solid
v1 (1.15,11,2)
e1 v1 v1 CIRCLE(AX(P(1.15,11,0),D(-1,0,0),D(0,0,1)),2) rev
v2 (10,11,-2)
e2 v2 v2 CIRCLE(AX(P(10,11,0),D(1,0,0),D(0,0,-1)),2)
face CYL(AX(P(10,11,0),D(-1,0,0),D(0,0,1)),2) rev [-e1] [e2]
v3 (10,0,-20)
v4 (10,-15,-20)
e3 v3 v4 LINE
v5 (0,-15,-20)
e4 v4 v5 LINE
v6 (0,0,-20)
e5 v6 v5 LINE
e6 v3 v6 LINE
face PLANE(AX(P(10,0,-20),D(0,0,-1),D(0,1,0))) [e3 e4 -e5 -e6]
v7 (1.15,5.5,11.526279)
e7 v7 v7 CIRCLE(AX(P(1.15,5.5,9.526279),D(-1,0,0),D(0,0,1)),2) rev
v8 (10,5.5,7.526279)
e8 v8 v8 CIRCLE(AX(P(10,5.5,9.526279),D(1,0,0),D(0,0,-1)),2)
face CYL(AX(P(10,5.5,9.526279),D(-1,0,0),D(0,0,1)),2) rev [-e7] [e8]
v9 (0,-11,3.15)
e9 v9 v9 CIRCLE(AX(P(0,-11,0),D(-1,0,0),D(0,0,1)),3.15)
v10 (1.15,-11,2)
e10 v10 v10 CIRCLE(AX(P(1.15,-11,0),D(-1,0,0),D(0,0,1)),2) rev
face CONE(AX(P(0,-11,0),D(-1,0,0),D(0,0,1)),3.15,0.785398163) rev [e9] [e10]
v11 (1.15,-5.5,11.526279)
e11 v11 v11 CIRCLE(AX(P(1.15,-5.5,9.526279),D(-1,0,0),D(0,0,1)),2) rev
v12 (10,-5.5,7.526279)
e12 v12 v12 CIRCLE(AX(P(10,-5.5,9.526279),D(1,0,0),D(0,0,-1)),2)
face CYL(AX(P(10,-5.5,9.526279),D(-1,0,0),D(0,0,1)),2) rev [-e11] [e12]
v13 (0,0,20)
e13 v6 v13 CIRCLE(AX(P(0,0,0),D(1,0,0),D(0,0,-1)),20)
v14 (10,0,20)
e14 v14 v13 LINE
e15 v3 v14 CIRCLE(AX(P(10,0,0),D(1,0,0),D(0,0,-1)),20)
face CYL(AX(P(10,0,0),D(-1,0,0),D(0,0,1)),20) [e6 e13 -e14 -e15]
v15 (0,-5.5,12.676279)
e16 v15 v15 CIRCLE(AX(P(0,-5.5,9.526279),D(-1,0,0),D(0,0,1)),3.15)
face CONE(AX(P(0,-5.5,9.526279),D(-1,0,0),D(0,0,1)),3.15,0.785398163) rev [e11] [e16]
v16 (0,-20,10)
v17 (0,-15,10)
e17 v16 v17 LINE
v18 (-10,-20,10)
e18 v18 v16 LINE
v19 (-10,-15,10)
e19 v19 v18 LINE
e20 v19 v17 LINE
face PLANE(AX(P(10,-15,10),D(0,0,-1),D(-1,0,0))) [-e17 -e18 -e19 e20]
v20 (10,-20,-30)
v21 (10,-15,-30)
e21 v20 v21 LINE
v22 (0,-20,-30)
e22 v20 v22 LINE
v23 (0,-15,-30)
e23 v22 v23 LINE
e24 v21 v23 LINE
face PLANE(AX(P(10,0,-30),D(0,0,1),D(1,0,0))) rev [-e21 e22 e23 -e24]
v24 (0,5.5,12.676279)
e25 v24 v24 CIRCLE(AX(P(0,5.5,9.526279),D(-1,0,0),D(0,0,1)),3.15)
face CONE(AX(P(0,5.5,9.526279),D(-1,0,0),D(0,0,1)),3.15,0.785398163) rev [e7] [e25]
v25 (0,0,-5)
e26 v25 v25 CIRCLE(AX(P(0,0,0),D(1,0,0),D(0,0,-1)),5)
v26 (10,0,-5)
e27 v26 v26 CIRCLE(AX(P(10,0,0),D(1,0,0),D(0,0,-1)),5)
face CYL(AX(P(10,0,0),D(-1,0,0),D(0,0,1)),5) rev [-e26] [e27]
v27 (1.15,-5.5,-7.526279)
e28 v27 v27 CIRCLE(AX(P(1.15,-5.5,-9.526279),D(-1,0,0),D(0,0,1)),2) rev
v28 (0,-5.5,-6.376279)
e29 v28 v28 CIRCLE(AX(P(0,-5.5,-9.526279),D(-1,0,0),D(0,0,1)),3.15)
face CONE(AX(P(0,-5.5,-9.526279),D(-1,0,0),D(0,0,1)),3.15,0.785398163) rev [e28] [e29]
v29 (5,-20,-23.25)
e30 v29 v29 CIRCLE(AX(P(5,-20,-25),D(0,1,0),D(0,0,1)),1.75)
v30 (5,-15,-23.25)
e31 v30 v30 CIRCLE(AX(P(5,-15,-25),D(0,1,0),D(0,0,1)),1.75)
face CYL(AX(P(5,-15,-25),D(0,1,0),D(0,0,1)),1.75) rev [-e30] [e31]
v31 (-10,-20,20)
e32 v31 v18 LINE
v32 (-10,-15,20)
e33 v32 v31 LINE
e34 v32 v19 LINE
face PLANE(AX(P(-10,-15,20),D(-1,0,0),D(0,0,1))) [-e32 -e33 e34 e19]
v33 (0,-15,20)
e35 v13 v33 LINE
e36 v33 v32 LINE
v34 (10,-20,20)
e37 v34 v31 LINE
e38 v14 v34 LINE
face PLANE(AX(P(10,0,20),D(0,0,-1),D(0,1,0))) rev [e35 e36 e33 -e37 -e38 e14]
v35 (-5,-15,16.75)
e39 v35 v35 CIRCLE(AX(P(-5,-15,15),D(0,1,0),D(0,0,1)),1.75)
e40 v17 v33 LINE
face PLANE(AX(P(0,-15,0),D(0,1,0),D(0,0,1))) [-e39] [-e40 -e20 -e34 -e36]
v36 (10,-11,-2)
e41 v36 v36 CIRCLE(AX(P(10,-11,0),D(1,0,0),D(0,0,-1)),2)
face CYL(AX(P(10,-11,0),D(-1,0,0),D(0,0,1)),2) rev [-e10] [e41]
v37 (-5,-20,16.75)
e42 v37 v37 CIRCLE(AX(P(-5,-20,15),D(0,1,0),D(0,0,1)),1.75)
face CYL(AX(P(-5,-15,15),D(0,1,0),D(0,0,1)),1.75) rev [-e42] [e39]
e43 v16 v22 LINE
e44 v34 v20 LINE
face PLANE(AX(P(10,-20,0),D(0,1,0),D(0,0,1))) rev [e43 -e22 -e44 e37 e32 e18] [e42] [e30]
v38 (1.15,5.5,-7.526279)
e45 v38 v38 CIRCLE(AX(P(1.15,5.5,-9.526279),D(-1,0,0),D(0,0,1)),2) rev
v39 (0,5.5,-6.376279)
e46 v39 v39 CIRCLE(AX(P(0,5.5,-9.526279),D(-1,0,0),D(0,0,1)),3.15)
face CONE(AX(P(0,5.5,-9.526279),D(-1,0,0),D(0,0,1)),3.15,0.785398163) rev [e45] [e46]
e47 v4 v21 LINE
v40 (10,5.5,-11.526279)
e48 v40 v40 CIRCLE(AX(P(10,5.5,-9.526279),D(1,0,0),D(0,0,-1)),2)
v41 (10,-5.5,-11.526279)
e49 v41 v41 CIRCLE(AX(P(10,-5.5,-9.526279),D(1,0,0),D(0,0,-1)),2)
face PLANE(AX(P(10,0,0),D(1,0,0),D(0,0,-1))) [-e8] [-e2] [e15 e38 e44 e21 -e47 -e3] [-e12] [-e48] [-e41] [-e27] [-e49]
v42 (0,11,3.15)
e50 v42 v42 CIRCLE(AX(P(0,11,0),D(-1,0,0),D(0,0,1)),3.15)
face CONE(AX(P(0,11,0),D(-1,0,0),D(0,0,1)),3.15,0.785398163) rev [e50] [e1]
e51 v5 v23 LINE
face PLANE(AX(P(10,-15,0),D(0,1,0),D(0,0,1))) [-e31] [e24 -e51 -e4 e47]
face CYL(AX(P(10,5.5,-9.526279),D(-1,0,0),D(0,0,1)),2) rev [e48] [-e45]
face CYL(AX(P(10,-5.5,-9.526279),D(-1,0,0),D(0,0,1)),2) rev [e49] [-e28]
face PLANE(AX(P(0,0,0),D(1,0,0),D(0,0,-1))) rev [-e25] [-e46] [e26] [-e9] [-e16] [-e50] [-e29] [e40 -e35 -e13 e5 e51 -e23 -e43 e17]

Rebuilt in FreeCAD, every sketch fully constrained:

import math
import FreeCAD as App
import Part
import Sketcher
from FreeCAD import Vector
Q = App.Units.Quantity


def add_polygon(sketch, points):
    """Adds a closed chain of lines whose ends are joined by coincident constraints."""
    first, n = sketch.GeometryCount, len(points)
    for a, b in zip(points, points[1:] + points[:1]):
        sketch.addGeometry(Part.LineSegment(App.Vector(*a, 0), App.Vector(*b, 0)), False)
    for i in range(n):
        sketch.addConstraint(Sketcher.Constraint("Coincident", first + i, 2, first + (i + 1) % n, 1))

doc = App.newDocument("Part")
params = doc.addObject("Spreadsheet::Sheet", "Params")
for row, (alias, value) in enumerate([
    ("sketch1_diameter", "4 mm"),
    ("sketch1_diameter2", "10 mm"),
    ("sketch1_radius", "20 mm"),
    ("sketch1_width", "15 mm"),
    ("sketch1_width2", "20 mm"),
    ("pad1_length", "10 mm"),
    ("sketch2_diameter", "3.4 mm"),
    ("hole_diameter", "3.4 mm"),
    ("hole_csink_diameter", "6.3 mm"),
    ("sketch3_width", "20 mm"),
    ("sketch3_height", "10 mm"),
    ("pad2_length", "5 mm"),
    ("sketch4_diameter", "3.5 mm"),
    ("hole2_diameter", "3.5 mm"),
], start=1):
    params.set(f"A{row}", alias)
    params.set(f"B{row}", "=" + value)
    params.setAlias(f"B{row}", alias)

body = doc.addObject("PartDesign::Body", "Body")

sketch1 = body.newObject("Sketcher::SketchObject", "Sketch")
sketch1.AttachmentSupport = (doc.getObject("YZ_Plane"), [""])
sketch1.MapMode = "FlatFace"
sketch1.addGeometry(Part.LineSegment(Vector(-15, -30, 0), Vector(-15, -20, 0)), False)
sketch1.addGeometry(Part.LineSegment(Vector(-15, -20, 0), Vector(0, -20, 0)), False)
sketch1.addGeometry(Part.ArcOfCircle(Part.Circle(Vector(0, 0, 0), Vector(0, 0, 1), 20), math.radians(-90), math.radians(90)), False)
sketch1.addGeometry(Part.LineSegment(Vector(0, 20, 0), Vector(-20, 20, 0)), False)
sketch1.addGeometry(Part.LineSegment(Vector(-20, 20, 0), Vector(-20, -30, 0)), False)
sketch1.addGeometry(Part.LineSegment(Vector(-20, -30, 0), Vector(-15, -30, 0)), False)
sketch1.addGeometry(Part.Circle(Vector(-5.5, 9.5, 0), Vector(0, 0, 1), 2), False)
sketch1.addGeometry(Part.Circle(Vector(-11, 0, 0), Vector(0, 0, 1), 2), False)
sketch1.addGeometry(Part.Circle(Vector(-5.5, -9.5, 0), Vector(0, 0, 1), 2), False)
sketch1.addGeometry(Part.Circle(Vector(5.5, 9.5, 0), Vector(0, 0, 1), 2), False)
sketch1.addGeometry(Part.Circle(Vector(0, 0, 0), Vector(0, 0, 1), 5), False)
sketch1.addGeometry(Part.Circle(Vector(5.5, -9.5, 0), Vector(0, 0, 1), 2), False)
sketch1.addGeometry(Part.Circle(Vector(11, 0, 0), Vector(0, 0, 1), 2), False)
sketch1.addConstraint(Sketcher.Constraint("Coincident", 0, 2, 1, 1))
sketch1.addConstraint(Sketcher.Constraint("Tangent", 1, 2, 2, 1))
sketch1.addConstraint(Sketcher.Constraint("Tangent", 2, 2, 3, 1))
sketch1.addConstraint(Sketcher.Constraint("Coincident", 3, 2, 4, 1))
sketch1.addConstraint(Sketcher.Constraint("Coincident", 4, 2, 5, 1))
sketch1.addConstraint(Sketcher.Constraint("Coincident", 5, 2, 0, 1))
sketch1.addConstraint(Sketcher.Constraint("Vertical", 0))
sketch1.addConstraint(Sketcher.Constraint("Horizontal", 1))
sketch1.addConstraint(Sketcher.Constraint("Horizontal", 3))
sketch1.addConstraint(Sketcher.Constraint("Vertical", 4))
sketch1.addConstraint(Sketcher.Constraint("Horizontal", 5))
sketch1.addConstraint(Sketcher.Constraint("Coincident", 2, 3, -1, 1))
sketch1.addConstraint(Sketcher.Constraint("Coincident", 10, 3, -1, 1))
sketch1.addConstraint(Sketcher.Constraint("Equal", 6, 7))
sketch1.addConstraint(Sketcher.Constraint("Equal", 7, 8))
sketch1.addConstraint(Sketcher.Constraint("Equal", 8, 9))
sketch1.addConstraint(Sketcher.Constraint("Equal", 9, 11))
sketch1.addConstraint(Sketcher.Constraint("Equal", 11, 12))
sketch1.addConstraint(Sketcher.Constraint("Symmetric", 8, 3, 9, 3, -1, 1))
sketch1.addConstraint(Sketcher.Constraint("Symmetric", 6, 3, 11, 3, -1, 1))
sketch1.addConstraint(Sketcher.Constraint("Symmetric", 7, 3, 12, 3, -1, 1))
sketch1.addConstraint(Sketcher.Constraint("Symmetric", 6, 3, 9, 3, -2))
sketch1.addConstraint(Sketcher.Constraint("PointOnObject", 7, 3, -1))
sketch1.addConstraint(Sketcher.Constraint("Diameter", 6, Q("4 mm")))
sketch1.addConstraint(Sketcher.Constraint("Diameter", 10, Q("10 mm")))
sketch1.addConstraint(Sketcher.Constraint("Radius", 2, Q("20 mm")))
sketch1.addConstraint(Sketcher.Constraint("DistanceX", 1, 1, 1, 2, Q("15 mm")))
sketch1.addConstraint(Sketcher.Constraint("DistanceX", 3, 2, 3, 1, Q("20 mm")))
sketch1.addConstraint(Sketcher.Constraint("DistanceY", 0, 1, 0, 2, Q("10 mm")))
sketch1.addConstraint(Sketcher.Constraint("DistanceX", 7, 3, -1, 1, Q("11 mm")))
sketch1.addConstraint(Sketcher.Constraint("DistanceX", 6, 3, 9, 3, Q("11 mm")))
sketch1.addConstraint(Sketcher.Constraint("DistanceY", -1, 1, 6, 3, Q("9.526279 mm")))
sketch1.setExpression("Constraints[23]", "Params.sketch1_diameter")
sketch1.setExpression("Constraints[24]", "Params.sketch1_diameter2")
sketch1.setExpression("Constraints[25]", "Params.sketch1_radius")
sketch1.setExpression("Constraints[26]", "Params.sketch1_width")
sketch1.setExpression("Constraints[27]", "Params.sketch1_width2")
pad1 = body.newObject("PartDesign::Pad", "Pad")
pad1.Profile = sketch1
pad1.setExpression("Length", "Params.pad1_length")

sketch2 = body.newObject("Sketcher::SketchObject", "Sketch001")
sketch2.AttachmentSupport = (doc.getObject("YZ_Plane"), [""])
sketch2.MapMode = "FlatFace"
sketch2.addGeometry(Part.Circle(Vector(11, 0, 0), Vector(0, 0, 1), 1.7), False)
sketch2.addGeometry(Part.Circle(Vector(5.5, 9.5, 0), Vector(0, 0, 1), 1.7), False)
sketch2.addGeometry(Part.Circle(Vector(-5.5, 9.5, 0), Vector(0, 0, 1), 1.7), False)
sketch2.addGeometry(Part.Circle(Vector(-11, 0, 0), Vector(0, 0, 1), 1.7), False)
sketch2.addGeometry(Part.Circle(Vector(-5.5, -9.5, 0), Vector(0, 0, 1), 1.7), False)
sketch2.addGeometry(Part.Circle(Vector(5.5, -9.5, 0), Vector(0, 0, 1), 1.7), False)
sketch2.addConstraint(Sketcher.Constraint("Equal", 0, 1))
sketch2.addConstraint(Sketcher.Constraint("Equal", 1, 2))
sketch2.addConstraint(Sketcher.Constraint("Equal", 2, 3))
sketch2.addConstraint(Sketcher.Constraint("Equal", 3, 4))
sketch2.addConstraint(Sketcher.Constraint("Equal", 4, 5))
sketch2.addConstraint(Sketcher.Constraint("Symmetric", 0, 3, 3, 3, -1, 1))
sketch2.addConstraint(Sketcher.Constraint("Symmetric", 1, 3, 4, 3, -1, 1))
sketch2.addConstraint(Sketcher.Constraint("Symmetric", 2, 3, 5, 3, -1, 1))
sketch2.addConstraint(Sketcher.Constraint("Symmetric", 1, 3, 2, 3, -2))
sketch2.addConstraint(Sketcher.Constraint("PointOnObject", 0, 3, -1))
sketch2.addConstraint(Sketcher.Constraint("Diameter", 0, Q("3.4 mm")))
sketch2.addConstraint(Sketcher.Constraint("DistanceX", -1, 1, 0, 3, Q("11 mm")))
sketch2.addConstraint(Sketcher.Constraint("DistanceX", 2, 3, 1, 3, Q("11 mm")))
sketch2.addConstraint(Sketcher.Constraint("DistanceY", -1, 1, 1, 3, Q("9.526279 mm")))
sketch2.setExpression("Constraints[10]", "Params.sketch2_diameter")
doc.recompute()
hole = body.newObject("PartDesign::Hole", "Hole")
hole.Profile = sketch2
hole.ThreadType = "None"
hole.setExpression("Diameter", "Params.hole_diameter")
hole.DepthType = "ThroughAll"
hole.HoleCutType = "Countersink"
hole.setExpression("HoleCutDiameter", "Params.hole_csink_diameter")
hole.HoleCutCountersinkAngle = 90
hole.Reversed = True

sketch3 = body.newObject("Sketcher::SketchObject", "Sketch002")
sketch3.AttachmentSupport = (doc.getObject("XZ_Plane"), [""])
sketch3.MapMode = "FlatFace"
sketch3.AttachmentOffset = App.Placement(Vector(0, 0, 20), App.Rotation())
add_polygon(sketch3, [(-10, 20), (-10, 10), (10, 10), (10, 20)])
sketch3.addConstraint(Sketcher.Constraint("Vertical", 0))
sketch3.addConstraint(Sketcher.Constraint("Horizontal", 1))
sketch3.addConstraint(Sketcher.Constraint("Vertical", 2))
sketch3.addConstraint(Sketcher.Constraint("Horizontal", 3))
sketch3.addConstraint(Sketcher.Constraint("DistanceX", 1, 1, 1, 2, Q("20 mm")))
sketch3.addConstraint(Sketcher.Constraint("DistanceY", 0, 2, 0, 1, Q("10 mm")))
sketch3.addConstraint(Sketcher.Constraint("DistanceX", 0, 2, -1, 1, Q("10 mm")))
sketch3.addConstraint(Sketcher.Constraint("DistanceY", -1, 1, 0, 2, Q("10 mm")))
sketch3.setExpression("Constraints[8]", "Params.sketch3_width")
sketch3.setExpression("Constraints[9]", "Params.sketch3_height")
pad2 = body.newObject("PartDesign::Pad", "Pad001")
pad2.Profile = sketch3
pad2.setExpression("Length", "Params.pad2_length")
pad2.Reversed = True

sketch4 = body.newObject("Sketcher::SketchObject", "Sketch003")
sketch4.AttachmentSupport = (doc.getObject("XZ_Plane"), [""])
sketch4.MapMode = "FlatFace"
sketch4.AttachmentOffset = App.Placement(Vector(0, 0, 15), App.Rotation())
sketch4.addGeometry(Part.Circle(Vector(5, -25, 0), Vector(0, 0, 1), 1.8), False)
sketch4.addGeometry(Part.Circle(Vector(-5, 15, 0), Vector(0, 0, 1), 1.8), False)
sketch4.addConstraint(Sketcher.Constraint("Equal", 0, 1))
sketch4.addConstraint(Sketcher.Constraint("Diameter", 0, Q("3.5 mm")))
sketch4.addConstraint(Sketcher.Constraint("DistanceX", -1, 1, 0, 3, Q("5 mm")))
sketch4.addConstraint(Sketcher.Constraint("DistanceY", 0, 3, -1, 1, Q("25 mm")))
sketch4.addConstraint(Sketcher.Constraint("DistanceX", 1, 3, -1, 1, Q("5 mm")))
sketch4.addConstraint(Sketcher.Constraint("DistanceY", -1, 1, 1, 3, Q("15 mm")))
sketch4.setExpression("Constraints[1]", "Params.sketch4_diameter")
doc.recompute()
hole2 = body.newObject("PartDesign::Hole", "Hole001")
hole2.Profile = sketch4
hole2.ThreadType = "None"
hole2.setExpression("Diameter", "Params.hole2_diameter")
hole2.DepthType = "ThroughAll"
hole2.Reversed = True

doc.recompute()
